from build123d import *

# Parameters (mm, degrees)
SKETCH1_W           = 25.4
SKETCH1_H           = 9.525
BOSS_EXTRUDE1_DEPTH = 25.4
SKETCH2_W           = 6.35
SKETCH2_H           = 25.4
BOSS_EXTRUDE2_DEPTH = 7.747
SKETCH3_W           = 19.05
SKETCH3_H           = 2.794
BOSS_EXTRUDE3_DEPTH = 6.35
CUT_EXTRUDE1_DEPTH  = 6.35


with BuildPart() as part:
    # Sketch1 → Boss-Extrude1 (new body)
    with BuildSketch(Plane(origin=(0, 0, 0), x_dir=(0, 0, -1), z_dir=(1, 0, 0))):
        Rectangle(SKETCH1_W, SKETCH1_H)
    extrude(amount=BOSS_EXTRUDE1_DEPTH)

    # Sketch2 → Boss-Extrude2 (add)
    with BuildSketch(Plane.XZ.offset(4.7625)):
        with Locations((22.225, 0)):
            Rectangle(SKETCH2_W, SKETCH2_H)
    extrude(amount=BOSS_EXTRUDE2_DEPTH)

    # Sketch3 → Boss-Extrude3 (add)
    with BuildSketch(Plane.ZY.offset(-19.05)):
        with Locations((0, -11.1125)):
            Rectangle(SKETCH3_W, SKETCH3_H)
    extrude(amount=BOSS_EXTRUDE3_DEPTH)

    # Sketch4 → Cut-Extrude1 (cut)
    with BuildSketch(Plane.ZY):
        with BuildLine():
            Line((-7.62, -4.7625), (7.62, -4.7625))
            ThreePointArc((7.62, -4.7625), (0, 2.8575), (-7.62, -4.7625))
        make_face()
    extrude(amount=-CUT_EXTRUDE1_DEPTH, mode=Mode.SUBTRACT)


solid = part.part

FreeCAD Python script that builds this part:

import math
import FreeCAD as App
import Part
import Sketcher
Q = App.Units.Quantity


def add_polygon(sketch, points):
    """Adds a closed chain of lines whose ends are joined by coincident constraints."""
    first, n = sketch.GeometryCount, len(points)
    for a, b in zip(points, points[1:] + points[:1]):
        sketch.addGeometry(Part.LineSegment(App.Vector(*a, 0), App.Vector(*b, 0)), False)
    for i in range(n):
        sketch.addConstraint(Sketcher.Constraint("Coincident", first + i, 2, first + (i + 1) % n, 1))

doc = App.newDocument("Part")
body = doc.addObject("PartDesign::Body", "Body")

# Sketch on YZ plane
sketch1 = doc.addObject("Sketcher::SketchObject", "Sketch")
body.addObject(sketch1)
sketch1.AttachmentSupport = (doc.YZ_Plane, [""])
sketch1.MapMode = "FlatFace"
add_polygon(sketch1, [(4.7625, 12.7), (-4.7625, 12.7), (-4.7625, -12.7), (4.7625, -12.7)])  # lines 0-3
sketch1.addConstraint([
    Sketcher.Constraint("Horizontal", 0),
    Sketcher.Constraint("Vertical", 1),
    Sketcher.Constraint("Horizontal", 2),
    Sketcher.Constraint("Vertical", 3),
    Sketcher.Constraint("Symmetric", 0, 2, 2, 2, -1, 1),
    Sketcher.Constraint("DistanceY", 1, 2, 1, 1, Q("1 in")),
    Sketcher.Constraint("DistanceX", 0, 2, 0, 1, Q("0.375 in")),
])
pad1 = doc.addObject("PartDesign::Pad", "Pad")
body.addObject(pad1)
pad1.Profile = sketch1
pad1.Length = Q("1 in")

# Sketch on XZ plane
sketch2 = doc.addObject("Sketcher::SketchObject", "Sketch001")
body.addObject(sketch2)
sketch2.AttachmentSupport = (doc.XZ_Plane, [""])
sketch2.MapMode = "FlatFace"
sketch2.AttachmentOffset = App.Placement(App.Vector(0, 0, 0.1875 * 25.4), App.Rotation())
add_polygon(sketch2, [(19.05, 12.7), (19.05, -12.7), (25.4, -12.7), (25.4, 12.7)])  # lines 0-3
sketch2.addConstraint([
    Sketcher.Constraint("Vertical", 0),
    Sketcher.Constraint("Horizontal", 1),
    Sketcher.Constraint("Vertical", 2),
    Sketcher.Constraint("Horizontal", 3),
    Sketcher.Constraint("DistanceY", 0, 2, 0, 1, Q("1 in")),
    Sketcher.Constraint("DistanceX", -1, 1, 1, 2, Q("1 in")),
    Sketcher.Constraint("DistanceX", 1, 1, 1, 2, Q("0.25 in")),
    Sketcher.Constraint("DistanceY", 0, 2, -1, 1, Q("0.5 in")),
])
pad2 = doc.addObject("PartDesign::Pad", "Pad001")
body.addObject(pad2)
pad2.Profile = sketch2
pad2.Length = Q("0.305 in")

# Sketch on YZ plane
sketch3 = doc.addObject("Sketcher::SketchObject", "Sketch002")
body.addObject(sketch3)
sketch3.AttachmentSupport = (doc.YZ_Plane, [""])
sketch3.MapMode = "FlatFace"
sketch3.AttachmentOffset = App.Placement(App.Vector(0, 0, 0.75 * 25.4), App.Rotation())
add_polygon(sketch3, [(-9.7155, -9.525), (-12.5095, -9.525), (-12.5095, 9.525), (-9.7155, 9.525)])  # lines 0-3
sketch3.addConstraint([
    Sketcher.Constraint("Horizontal", 0),
    Sketcher.Constraint("Vertical", 1),
    Sketcher.Constraint("Horizontal", 2),
    Sketcher.Constraint("Vertical", 3),
    Sketcher.Constraint("DistanceX", 0, 2, 0, 1, Q("0.11 in")),
    Sketcher.Constraint("DistanceY", 1, 1, 1, 2, Q("0.75 in")),
    Sketcher.Constraint("DistanceY", 0, 2, -1, 1, Q("0.375 in")),
    Sketcher.Constraint("DistanceX", 0, 2, -1, 1, Q("0.4925 in")),
])
pad3 = doc.addObject("PartDesign::Pad", "Pad002")
body.addObject(pad3)
pad3.Profile = sketch3
pad3.Length = Q("0.25 in")
pad3.Reversed = True

# Sketch on YZ plane
sketch4 = doc.addObject("Sketcher::SketchObject", "Sketch003")
body.addObject(sketch4)
sketch4.AttachmentSupport = (doc.YZ_Plane, [""])
sketch4.MapMode = "FlatFace"
sketch4.addGeometry([
    Part.LineSegment(App.Vector(-4.7625, -7.62, 0), App.Vector(-4.7625, 7.62, 0)),
    Part.ArcOfCircle(Part.Circle(App.Vector(-4.7625, 0, 0), App.Vector(0, 0, 1), 7.62), math.radians(-90), math.radians(90)),
], False)
sketch4.addConstraint([
    Sketcher.Constraint("Coincident", 0, 1, 1, 1),
    Sketcher.Constraint("Coincident", 1, 2, 0, 2),
    Sketcher.Constraint("Vertical", 0),
    Sketcher.Constraint("PointOnObject", 1, 3, -1),
    Sketcher.Constraint("Vertical", 1, 3, 0, 1),
    Sketcher.Constraint("Radius", 1, Q("0.3 in")),
    Sketcher.Constraint("DistanceX", 1, 3, -1, 1, Q("0.1875 in")),
])
pocket1 = doc.addObject("PartDesign::Pocket", "Pocket")
body.addObject(pocket1)
pocket1.Profile = sketch4
pocket1.Length = Q("0.25 in")
pocket1.Reversed = True

doc.recompute()
